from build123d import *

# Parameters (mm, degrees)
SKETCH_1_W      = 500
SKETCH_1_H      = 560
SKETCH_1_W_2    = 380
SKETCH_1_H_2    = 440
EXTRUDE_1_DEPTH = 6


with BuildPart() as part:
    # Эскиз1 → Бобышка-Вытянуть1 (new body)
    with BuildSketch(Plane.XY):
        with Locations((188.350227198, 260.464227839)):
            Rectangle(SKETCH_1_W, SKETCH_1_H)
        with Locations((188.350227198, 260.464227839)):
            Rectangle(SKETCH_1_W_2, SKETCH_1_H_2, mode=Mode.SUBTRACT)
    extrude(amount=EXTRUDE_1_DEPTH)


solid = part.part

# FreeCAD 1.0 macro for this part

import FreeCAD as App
import Part
import Sketcher

doc = App.newDocument("Part")
body = doc.addObject("PartDesign::Body", "Body")

sketch1 = body.newObject("Sketcher::SketchObject", "Sketch")
sketch1.AttachmentSupport = (doc.getObject("XY_Plane"), [""])
sketch1.MapMode = "FlatFace"
sketch1.addGeometry(Part.LineSegment(App.Vector(-62, 540, 0), App.Vector(-62, -20, 0)), False)
sketch1.addGeometry(Part.LineSegment(App.Vector(-62, -20, 0), App.Vector(438, -20, 0)), False)
sketch1.addGeometry(Part.LineSegment(App.Vector(438, -20, 0), App.Vector(438, 540, 0)), False)
sketch1.addGeometry(Part.LineSegment(App.Vector(438, 540, 0), App.Vector(-62, 540, 0)), False)
sketch1.addGeometry(Part.LineSegment(App.Vector(378, 40, 0), App.Vector(-2, 40, 0)), False)
sketch1.addGeometry(Part.LineSegment(App.Vector(-2, 40, 0), App.Vector(-2, 480, 0)), False)
sketch1.addGeometry(Part.LineSegment(App.Vector(-2, 480, 0), App.Vector(378, 480, 0)), False)
sketch1.addGeometry(Part.LineSegment(App.Vector(378, 480, 0), App.Vector(378, 40, 0)), False)
sketch1.addConstraint(Sketcher.Constraint("Coincident", 0, 2, 1, 1))
sketch1.addConstraint(Sketcher.Constraint("Coincident", 1, 2, 2, 1))
sketch1.addConstraint(Sketcher.Constraint("Coincident", 2, 2, 3, 1))
sketch1.addConstraint(Sketcher.Constraint("Coincident", 3, 2, 0, 1))
sketch1.addConstraint(Sketcher.Constraint("Coincident", 4, 2, 5, 1))
sketch1.addConstraint(Sketcher.Constraint("Coincident", 5, 2, 6, 1))
sketch1.addConstraint(Sketcher.Constraint("Coincident", 6, 2, 7, 1))
sketch1.addConstraint(Sketcher.Constraint("Coincident", 7, 2, 4, 1))
sketch1.addConstraint(Sketcher.Constraint("Vertical", 0))
sketch1.addConstraint(Sketcher.Constraint("Horizontal", 1))
sketch1.addConstraint(Sketcher.Constraint("Vertical", 2))
sketch1.addConstraint(Sketcher.Constraint("Horizontal", 3))
sketch1.addConstraint(Sketcher.Constraint("Horizontal", 4))
sketch1.addConstraint(Sketcher.Constraint("Vertical", 5))
sketch1.addConstraint(Sketcher.Constraint("Horizontal", 6))
sketch1.addConstraint(Sketcher.Constraint("Vertical", 7))
sketch1.addConstraint(Sketcher.Constraint("DistanceX", 1, 1, 1, 2, 500.0))
sketch1.addConstraint(Sketcher.Constraint("DistanceX", 4, 2, 4, 1, 380.0))
sketch1.addConstraint(Sketcher.Constraint("DistanceY", 0, 2, 0, 1, 560.0))
sketch1.addConstraint(Sketcher.Constraint("DistanceY", 5, 1, 5, 2, 440.0))
sketch1.addConstraint(Sketcher.Constraint("DistanceX", 0, 2, 4, 2, 60.0))
sketch1.addConstraint(Sketcher.Constraint("DistanceY", 0, 2, 4, 2, 60.0))
sketch1.addConstraint(Sketcher.Constraint("DistanceX", 0, 2, -1, 1, 61.649773))
sketch1.addConstraint(Sketcher.Constraint("DistanceY", 0, 2, -1, 1, 19.535772))
pad1 = body.newObject("PartDesign::Pad", "Pad")
pad1.Profile = sketch1
pad1.Length = 6

doc.recompute()
